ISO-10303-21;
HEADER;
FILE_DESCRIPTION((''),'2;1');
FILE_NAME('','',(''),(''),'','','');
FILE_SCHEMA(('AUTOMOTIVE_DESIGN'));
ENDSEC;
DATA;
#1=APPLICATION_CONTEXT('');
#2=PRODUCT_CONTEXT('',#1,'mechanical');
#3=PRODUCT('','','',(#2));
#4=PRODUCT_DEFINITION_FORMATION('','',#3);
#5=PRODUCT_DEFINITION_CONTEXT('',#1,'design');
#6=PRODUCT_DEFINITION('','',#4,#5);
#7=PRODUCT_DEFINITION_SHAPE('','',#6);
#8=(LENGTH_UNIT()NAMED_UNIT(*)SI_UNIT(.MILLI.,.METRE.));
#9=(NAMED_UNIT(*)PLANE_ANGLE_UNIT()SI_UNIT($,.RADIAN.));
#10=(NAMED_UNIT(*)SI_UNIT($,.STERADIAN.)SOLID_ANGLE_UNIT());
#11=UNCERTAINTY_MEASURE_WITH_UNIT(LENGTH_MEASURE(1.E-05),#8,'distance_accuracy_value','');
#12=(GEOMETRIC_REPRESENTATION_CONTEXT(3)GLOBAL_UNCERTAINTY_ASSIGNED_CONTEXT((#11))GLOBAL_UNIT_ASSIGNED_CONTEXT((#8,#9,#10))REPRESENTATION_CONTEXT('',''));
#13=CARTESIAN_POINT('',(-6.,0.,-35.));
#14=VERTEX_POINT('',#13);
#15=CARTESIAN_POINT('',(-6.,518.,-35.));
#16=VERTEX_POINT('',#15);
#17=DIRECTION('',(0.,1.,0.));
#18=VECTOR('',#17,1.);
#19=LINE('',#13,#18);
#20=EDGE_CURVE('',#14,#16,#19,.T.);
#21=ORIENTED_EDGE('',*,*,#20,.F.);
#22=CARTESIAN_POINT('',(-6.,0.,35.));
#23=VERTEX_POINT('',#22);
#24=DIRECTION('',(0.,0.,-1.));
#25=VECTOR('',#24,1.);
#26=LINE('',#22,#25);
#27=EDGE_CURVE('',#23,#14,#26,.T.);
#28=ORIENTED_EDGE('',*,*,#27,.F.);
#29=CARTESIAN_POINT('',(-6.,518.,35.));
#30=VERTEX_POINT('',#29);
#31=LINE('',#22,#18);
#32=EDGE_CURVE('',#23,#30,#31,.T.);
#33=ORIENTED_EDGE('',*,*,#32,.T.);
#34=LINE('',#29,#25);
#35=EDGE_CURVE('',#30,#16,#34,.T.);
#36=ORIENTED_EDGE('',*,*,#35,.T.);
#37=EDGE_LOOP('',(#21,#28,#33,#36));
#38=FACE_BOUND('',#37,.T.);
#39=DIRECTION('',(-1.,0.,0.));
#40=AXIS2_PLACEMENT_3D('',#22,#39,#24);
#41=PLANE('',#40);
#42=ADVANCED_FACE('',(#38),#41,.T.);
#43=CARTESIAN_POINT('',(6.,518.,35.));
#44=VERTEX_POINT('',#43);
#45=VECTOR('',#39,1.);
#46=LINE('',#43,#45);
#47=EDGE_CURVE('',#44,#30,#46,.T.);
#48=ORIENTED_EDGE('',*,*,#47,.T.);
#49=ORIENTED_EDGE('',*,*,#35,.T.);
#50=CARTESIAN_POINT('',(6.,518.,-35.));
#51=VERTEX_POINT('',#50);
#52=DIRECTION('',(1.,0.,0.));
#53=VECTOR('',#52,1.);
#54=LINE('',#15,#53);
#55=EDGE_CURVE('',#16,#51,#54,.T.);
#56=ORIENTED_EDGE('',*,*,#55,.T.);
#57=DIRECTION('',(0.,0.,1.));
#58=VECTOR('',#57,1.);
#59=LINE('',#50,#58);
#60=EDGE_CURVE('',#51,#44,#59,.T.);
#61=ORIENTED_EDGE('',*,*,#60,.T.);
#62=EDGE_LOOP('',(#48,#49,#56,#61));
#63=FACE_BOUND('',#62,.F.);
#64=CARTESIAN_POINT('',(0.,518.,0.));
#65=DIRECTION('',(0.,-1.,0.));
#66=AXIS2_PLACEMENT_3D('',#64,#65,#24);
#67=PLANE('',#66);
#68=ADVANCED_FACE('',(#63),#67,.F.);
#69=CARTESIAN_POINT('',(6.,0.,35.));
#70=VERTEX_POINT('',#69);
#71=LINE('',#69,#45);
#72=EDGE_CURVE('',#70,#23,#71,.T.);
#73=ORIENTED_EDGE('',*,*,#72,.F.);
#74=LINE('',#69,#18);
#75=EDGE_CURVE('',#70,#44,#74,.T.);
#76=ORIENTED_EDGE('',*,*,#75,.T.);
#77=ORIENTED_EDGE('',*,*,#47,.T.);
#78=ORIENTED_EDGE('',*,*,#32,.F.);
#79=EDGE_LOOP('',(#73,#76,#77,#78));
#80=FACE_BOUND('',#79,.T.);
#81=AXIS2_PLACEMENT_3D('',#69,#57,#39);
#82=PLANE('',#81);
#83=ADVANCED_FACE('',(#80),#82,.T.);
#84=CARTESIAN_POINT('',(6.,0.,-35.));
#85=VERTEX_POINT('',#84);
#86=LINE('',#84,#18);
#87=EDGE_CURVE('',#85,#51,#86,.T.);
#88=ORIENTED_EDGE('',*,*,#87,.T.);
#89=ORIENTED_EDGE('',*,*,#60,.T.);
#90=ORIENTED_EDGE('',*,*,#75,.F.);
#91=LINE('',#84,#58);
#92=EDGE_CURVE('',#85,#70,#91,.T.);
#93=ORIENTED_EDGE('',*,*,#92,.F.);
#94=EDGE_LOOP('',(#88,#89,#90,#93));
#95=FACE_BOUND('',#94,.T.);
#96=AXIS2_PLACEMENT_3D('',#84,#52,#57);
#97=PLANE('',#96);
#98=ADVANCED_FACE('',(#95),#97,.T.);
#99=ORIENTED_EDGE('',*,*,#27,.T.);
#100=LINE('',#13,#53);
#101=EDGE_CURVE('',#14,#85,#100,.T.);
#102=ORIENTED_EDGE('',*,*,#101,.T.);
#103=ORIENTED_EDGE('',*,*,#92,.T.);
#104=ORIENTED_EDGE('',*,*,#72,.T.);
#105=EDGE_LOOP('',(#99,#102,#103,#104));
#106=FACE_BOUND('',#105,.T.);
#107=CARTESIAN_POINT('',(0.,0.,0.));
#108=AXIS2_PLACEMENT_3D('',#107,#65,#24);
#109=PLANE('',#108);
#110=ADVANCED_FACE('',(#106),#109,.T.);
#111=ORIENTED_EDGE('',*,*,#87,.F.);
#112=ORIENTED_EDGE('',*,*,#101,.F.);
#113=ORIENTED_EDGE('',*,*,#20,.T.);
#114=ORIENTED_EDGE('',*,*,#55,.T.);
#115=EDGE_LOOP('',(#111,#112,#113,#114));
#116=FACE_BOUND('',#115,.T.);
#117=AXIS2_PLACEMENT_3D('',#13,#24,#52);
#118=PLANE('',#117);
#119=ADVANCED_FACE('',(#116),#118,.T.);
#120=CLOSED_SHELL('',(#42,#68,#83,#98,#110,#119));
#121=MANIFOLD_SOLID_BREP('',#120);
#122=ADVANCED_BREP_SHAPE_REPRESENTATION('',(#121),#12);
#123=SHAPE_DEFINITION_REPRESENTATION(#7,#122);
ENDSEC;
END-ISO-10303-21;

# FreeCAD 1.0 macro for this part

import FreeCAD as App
import Part
import Sketcher

V = App.Vector


def add_polygon(sketch, points):
    """Adds a closed chain of lines whose ends are joined by coincident constraints."""
    first, n = sketch.GeometryCount, len(points)
    for a, b in zip(points, points[1:] + points[:1]):
        sketch.addGeometry(Part.LineSegment(App.Vector(*a, 0), App.Vector(*b, 0)), False)
    for i in range(n):
        sketch.addConstraint(Sketcher.Constraint("Coincident", first + i, 2, first + (i + 1) % n, 1))

doc = App.newDocument("Part")
body = doc.addObject("PartDesign::Body", "Body")

# Sketch on XZ plane
sketch1 = body.newObject("Sketcher::SketchObject", "Sketch")
sketch1.AttachmentSupport = (doc.getObject("XZ_Plane"), [""])
sketch1.MapMode = "FlatFace"
add_polygon(sketch1, [(-6, 35), (-6, -35), (6, -35), (6, 35)])  # lines 0-3
sketch1.addConstraint(Sketcher.Constraint("Vertical", 0))
sketch1.addConstraint(Sketcher.Constraint("Horizontal", 1))
sketch1.addConstraint(Sketcher.Constraint("Vertical", 2))
sketch1.addConstraint(Sketcher.Constraint("Horizontal", 3))
sketch1.addConstraint(Sketcher.Constraint("Symmetric", 0, 2, 2, 2, -1, 1))
sketch1.addConstraint(Sketcher.Constraint("DistanceX", 1, 1, 1, 2, 12.0))
sketch1.addConstraint(Sketcher.Constraint("DistanceY", 0, 2, 0, 1, 70.0))
pad1 = body.newObject("PartDesign::Pad", "Pad")
pad1.Profile = sketch1
pad1.Length = 518
pad1.Reversed = True

doc.recompute()
